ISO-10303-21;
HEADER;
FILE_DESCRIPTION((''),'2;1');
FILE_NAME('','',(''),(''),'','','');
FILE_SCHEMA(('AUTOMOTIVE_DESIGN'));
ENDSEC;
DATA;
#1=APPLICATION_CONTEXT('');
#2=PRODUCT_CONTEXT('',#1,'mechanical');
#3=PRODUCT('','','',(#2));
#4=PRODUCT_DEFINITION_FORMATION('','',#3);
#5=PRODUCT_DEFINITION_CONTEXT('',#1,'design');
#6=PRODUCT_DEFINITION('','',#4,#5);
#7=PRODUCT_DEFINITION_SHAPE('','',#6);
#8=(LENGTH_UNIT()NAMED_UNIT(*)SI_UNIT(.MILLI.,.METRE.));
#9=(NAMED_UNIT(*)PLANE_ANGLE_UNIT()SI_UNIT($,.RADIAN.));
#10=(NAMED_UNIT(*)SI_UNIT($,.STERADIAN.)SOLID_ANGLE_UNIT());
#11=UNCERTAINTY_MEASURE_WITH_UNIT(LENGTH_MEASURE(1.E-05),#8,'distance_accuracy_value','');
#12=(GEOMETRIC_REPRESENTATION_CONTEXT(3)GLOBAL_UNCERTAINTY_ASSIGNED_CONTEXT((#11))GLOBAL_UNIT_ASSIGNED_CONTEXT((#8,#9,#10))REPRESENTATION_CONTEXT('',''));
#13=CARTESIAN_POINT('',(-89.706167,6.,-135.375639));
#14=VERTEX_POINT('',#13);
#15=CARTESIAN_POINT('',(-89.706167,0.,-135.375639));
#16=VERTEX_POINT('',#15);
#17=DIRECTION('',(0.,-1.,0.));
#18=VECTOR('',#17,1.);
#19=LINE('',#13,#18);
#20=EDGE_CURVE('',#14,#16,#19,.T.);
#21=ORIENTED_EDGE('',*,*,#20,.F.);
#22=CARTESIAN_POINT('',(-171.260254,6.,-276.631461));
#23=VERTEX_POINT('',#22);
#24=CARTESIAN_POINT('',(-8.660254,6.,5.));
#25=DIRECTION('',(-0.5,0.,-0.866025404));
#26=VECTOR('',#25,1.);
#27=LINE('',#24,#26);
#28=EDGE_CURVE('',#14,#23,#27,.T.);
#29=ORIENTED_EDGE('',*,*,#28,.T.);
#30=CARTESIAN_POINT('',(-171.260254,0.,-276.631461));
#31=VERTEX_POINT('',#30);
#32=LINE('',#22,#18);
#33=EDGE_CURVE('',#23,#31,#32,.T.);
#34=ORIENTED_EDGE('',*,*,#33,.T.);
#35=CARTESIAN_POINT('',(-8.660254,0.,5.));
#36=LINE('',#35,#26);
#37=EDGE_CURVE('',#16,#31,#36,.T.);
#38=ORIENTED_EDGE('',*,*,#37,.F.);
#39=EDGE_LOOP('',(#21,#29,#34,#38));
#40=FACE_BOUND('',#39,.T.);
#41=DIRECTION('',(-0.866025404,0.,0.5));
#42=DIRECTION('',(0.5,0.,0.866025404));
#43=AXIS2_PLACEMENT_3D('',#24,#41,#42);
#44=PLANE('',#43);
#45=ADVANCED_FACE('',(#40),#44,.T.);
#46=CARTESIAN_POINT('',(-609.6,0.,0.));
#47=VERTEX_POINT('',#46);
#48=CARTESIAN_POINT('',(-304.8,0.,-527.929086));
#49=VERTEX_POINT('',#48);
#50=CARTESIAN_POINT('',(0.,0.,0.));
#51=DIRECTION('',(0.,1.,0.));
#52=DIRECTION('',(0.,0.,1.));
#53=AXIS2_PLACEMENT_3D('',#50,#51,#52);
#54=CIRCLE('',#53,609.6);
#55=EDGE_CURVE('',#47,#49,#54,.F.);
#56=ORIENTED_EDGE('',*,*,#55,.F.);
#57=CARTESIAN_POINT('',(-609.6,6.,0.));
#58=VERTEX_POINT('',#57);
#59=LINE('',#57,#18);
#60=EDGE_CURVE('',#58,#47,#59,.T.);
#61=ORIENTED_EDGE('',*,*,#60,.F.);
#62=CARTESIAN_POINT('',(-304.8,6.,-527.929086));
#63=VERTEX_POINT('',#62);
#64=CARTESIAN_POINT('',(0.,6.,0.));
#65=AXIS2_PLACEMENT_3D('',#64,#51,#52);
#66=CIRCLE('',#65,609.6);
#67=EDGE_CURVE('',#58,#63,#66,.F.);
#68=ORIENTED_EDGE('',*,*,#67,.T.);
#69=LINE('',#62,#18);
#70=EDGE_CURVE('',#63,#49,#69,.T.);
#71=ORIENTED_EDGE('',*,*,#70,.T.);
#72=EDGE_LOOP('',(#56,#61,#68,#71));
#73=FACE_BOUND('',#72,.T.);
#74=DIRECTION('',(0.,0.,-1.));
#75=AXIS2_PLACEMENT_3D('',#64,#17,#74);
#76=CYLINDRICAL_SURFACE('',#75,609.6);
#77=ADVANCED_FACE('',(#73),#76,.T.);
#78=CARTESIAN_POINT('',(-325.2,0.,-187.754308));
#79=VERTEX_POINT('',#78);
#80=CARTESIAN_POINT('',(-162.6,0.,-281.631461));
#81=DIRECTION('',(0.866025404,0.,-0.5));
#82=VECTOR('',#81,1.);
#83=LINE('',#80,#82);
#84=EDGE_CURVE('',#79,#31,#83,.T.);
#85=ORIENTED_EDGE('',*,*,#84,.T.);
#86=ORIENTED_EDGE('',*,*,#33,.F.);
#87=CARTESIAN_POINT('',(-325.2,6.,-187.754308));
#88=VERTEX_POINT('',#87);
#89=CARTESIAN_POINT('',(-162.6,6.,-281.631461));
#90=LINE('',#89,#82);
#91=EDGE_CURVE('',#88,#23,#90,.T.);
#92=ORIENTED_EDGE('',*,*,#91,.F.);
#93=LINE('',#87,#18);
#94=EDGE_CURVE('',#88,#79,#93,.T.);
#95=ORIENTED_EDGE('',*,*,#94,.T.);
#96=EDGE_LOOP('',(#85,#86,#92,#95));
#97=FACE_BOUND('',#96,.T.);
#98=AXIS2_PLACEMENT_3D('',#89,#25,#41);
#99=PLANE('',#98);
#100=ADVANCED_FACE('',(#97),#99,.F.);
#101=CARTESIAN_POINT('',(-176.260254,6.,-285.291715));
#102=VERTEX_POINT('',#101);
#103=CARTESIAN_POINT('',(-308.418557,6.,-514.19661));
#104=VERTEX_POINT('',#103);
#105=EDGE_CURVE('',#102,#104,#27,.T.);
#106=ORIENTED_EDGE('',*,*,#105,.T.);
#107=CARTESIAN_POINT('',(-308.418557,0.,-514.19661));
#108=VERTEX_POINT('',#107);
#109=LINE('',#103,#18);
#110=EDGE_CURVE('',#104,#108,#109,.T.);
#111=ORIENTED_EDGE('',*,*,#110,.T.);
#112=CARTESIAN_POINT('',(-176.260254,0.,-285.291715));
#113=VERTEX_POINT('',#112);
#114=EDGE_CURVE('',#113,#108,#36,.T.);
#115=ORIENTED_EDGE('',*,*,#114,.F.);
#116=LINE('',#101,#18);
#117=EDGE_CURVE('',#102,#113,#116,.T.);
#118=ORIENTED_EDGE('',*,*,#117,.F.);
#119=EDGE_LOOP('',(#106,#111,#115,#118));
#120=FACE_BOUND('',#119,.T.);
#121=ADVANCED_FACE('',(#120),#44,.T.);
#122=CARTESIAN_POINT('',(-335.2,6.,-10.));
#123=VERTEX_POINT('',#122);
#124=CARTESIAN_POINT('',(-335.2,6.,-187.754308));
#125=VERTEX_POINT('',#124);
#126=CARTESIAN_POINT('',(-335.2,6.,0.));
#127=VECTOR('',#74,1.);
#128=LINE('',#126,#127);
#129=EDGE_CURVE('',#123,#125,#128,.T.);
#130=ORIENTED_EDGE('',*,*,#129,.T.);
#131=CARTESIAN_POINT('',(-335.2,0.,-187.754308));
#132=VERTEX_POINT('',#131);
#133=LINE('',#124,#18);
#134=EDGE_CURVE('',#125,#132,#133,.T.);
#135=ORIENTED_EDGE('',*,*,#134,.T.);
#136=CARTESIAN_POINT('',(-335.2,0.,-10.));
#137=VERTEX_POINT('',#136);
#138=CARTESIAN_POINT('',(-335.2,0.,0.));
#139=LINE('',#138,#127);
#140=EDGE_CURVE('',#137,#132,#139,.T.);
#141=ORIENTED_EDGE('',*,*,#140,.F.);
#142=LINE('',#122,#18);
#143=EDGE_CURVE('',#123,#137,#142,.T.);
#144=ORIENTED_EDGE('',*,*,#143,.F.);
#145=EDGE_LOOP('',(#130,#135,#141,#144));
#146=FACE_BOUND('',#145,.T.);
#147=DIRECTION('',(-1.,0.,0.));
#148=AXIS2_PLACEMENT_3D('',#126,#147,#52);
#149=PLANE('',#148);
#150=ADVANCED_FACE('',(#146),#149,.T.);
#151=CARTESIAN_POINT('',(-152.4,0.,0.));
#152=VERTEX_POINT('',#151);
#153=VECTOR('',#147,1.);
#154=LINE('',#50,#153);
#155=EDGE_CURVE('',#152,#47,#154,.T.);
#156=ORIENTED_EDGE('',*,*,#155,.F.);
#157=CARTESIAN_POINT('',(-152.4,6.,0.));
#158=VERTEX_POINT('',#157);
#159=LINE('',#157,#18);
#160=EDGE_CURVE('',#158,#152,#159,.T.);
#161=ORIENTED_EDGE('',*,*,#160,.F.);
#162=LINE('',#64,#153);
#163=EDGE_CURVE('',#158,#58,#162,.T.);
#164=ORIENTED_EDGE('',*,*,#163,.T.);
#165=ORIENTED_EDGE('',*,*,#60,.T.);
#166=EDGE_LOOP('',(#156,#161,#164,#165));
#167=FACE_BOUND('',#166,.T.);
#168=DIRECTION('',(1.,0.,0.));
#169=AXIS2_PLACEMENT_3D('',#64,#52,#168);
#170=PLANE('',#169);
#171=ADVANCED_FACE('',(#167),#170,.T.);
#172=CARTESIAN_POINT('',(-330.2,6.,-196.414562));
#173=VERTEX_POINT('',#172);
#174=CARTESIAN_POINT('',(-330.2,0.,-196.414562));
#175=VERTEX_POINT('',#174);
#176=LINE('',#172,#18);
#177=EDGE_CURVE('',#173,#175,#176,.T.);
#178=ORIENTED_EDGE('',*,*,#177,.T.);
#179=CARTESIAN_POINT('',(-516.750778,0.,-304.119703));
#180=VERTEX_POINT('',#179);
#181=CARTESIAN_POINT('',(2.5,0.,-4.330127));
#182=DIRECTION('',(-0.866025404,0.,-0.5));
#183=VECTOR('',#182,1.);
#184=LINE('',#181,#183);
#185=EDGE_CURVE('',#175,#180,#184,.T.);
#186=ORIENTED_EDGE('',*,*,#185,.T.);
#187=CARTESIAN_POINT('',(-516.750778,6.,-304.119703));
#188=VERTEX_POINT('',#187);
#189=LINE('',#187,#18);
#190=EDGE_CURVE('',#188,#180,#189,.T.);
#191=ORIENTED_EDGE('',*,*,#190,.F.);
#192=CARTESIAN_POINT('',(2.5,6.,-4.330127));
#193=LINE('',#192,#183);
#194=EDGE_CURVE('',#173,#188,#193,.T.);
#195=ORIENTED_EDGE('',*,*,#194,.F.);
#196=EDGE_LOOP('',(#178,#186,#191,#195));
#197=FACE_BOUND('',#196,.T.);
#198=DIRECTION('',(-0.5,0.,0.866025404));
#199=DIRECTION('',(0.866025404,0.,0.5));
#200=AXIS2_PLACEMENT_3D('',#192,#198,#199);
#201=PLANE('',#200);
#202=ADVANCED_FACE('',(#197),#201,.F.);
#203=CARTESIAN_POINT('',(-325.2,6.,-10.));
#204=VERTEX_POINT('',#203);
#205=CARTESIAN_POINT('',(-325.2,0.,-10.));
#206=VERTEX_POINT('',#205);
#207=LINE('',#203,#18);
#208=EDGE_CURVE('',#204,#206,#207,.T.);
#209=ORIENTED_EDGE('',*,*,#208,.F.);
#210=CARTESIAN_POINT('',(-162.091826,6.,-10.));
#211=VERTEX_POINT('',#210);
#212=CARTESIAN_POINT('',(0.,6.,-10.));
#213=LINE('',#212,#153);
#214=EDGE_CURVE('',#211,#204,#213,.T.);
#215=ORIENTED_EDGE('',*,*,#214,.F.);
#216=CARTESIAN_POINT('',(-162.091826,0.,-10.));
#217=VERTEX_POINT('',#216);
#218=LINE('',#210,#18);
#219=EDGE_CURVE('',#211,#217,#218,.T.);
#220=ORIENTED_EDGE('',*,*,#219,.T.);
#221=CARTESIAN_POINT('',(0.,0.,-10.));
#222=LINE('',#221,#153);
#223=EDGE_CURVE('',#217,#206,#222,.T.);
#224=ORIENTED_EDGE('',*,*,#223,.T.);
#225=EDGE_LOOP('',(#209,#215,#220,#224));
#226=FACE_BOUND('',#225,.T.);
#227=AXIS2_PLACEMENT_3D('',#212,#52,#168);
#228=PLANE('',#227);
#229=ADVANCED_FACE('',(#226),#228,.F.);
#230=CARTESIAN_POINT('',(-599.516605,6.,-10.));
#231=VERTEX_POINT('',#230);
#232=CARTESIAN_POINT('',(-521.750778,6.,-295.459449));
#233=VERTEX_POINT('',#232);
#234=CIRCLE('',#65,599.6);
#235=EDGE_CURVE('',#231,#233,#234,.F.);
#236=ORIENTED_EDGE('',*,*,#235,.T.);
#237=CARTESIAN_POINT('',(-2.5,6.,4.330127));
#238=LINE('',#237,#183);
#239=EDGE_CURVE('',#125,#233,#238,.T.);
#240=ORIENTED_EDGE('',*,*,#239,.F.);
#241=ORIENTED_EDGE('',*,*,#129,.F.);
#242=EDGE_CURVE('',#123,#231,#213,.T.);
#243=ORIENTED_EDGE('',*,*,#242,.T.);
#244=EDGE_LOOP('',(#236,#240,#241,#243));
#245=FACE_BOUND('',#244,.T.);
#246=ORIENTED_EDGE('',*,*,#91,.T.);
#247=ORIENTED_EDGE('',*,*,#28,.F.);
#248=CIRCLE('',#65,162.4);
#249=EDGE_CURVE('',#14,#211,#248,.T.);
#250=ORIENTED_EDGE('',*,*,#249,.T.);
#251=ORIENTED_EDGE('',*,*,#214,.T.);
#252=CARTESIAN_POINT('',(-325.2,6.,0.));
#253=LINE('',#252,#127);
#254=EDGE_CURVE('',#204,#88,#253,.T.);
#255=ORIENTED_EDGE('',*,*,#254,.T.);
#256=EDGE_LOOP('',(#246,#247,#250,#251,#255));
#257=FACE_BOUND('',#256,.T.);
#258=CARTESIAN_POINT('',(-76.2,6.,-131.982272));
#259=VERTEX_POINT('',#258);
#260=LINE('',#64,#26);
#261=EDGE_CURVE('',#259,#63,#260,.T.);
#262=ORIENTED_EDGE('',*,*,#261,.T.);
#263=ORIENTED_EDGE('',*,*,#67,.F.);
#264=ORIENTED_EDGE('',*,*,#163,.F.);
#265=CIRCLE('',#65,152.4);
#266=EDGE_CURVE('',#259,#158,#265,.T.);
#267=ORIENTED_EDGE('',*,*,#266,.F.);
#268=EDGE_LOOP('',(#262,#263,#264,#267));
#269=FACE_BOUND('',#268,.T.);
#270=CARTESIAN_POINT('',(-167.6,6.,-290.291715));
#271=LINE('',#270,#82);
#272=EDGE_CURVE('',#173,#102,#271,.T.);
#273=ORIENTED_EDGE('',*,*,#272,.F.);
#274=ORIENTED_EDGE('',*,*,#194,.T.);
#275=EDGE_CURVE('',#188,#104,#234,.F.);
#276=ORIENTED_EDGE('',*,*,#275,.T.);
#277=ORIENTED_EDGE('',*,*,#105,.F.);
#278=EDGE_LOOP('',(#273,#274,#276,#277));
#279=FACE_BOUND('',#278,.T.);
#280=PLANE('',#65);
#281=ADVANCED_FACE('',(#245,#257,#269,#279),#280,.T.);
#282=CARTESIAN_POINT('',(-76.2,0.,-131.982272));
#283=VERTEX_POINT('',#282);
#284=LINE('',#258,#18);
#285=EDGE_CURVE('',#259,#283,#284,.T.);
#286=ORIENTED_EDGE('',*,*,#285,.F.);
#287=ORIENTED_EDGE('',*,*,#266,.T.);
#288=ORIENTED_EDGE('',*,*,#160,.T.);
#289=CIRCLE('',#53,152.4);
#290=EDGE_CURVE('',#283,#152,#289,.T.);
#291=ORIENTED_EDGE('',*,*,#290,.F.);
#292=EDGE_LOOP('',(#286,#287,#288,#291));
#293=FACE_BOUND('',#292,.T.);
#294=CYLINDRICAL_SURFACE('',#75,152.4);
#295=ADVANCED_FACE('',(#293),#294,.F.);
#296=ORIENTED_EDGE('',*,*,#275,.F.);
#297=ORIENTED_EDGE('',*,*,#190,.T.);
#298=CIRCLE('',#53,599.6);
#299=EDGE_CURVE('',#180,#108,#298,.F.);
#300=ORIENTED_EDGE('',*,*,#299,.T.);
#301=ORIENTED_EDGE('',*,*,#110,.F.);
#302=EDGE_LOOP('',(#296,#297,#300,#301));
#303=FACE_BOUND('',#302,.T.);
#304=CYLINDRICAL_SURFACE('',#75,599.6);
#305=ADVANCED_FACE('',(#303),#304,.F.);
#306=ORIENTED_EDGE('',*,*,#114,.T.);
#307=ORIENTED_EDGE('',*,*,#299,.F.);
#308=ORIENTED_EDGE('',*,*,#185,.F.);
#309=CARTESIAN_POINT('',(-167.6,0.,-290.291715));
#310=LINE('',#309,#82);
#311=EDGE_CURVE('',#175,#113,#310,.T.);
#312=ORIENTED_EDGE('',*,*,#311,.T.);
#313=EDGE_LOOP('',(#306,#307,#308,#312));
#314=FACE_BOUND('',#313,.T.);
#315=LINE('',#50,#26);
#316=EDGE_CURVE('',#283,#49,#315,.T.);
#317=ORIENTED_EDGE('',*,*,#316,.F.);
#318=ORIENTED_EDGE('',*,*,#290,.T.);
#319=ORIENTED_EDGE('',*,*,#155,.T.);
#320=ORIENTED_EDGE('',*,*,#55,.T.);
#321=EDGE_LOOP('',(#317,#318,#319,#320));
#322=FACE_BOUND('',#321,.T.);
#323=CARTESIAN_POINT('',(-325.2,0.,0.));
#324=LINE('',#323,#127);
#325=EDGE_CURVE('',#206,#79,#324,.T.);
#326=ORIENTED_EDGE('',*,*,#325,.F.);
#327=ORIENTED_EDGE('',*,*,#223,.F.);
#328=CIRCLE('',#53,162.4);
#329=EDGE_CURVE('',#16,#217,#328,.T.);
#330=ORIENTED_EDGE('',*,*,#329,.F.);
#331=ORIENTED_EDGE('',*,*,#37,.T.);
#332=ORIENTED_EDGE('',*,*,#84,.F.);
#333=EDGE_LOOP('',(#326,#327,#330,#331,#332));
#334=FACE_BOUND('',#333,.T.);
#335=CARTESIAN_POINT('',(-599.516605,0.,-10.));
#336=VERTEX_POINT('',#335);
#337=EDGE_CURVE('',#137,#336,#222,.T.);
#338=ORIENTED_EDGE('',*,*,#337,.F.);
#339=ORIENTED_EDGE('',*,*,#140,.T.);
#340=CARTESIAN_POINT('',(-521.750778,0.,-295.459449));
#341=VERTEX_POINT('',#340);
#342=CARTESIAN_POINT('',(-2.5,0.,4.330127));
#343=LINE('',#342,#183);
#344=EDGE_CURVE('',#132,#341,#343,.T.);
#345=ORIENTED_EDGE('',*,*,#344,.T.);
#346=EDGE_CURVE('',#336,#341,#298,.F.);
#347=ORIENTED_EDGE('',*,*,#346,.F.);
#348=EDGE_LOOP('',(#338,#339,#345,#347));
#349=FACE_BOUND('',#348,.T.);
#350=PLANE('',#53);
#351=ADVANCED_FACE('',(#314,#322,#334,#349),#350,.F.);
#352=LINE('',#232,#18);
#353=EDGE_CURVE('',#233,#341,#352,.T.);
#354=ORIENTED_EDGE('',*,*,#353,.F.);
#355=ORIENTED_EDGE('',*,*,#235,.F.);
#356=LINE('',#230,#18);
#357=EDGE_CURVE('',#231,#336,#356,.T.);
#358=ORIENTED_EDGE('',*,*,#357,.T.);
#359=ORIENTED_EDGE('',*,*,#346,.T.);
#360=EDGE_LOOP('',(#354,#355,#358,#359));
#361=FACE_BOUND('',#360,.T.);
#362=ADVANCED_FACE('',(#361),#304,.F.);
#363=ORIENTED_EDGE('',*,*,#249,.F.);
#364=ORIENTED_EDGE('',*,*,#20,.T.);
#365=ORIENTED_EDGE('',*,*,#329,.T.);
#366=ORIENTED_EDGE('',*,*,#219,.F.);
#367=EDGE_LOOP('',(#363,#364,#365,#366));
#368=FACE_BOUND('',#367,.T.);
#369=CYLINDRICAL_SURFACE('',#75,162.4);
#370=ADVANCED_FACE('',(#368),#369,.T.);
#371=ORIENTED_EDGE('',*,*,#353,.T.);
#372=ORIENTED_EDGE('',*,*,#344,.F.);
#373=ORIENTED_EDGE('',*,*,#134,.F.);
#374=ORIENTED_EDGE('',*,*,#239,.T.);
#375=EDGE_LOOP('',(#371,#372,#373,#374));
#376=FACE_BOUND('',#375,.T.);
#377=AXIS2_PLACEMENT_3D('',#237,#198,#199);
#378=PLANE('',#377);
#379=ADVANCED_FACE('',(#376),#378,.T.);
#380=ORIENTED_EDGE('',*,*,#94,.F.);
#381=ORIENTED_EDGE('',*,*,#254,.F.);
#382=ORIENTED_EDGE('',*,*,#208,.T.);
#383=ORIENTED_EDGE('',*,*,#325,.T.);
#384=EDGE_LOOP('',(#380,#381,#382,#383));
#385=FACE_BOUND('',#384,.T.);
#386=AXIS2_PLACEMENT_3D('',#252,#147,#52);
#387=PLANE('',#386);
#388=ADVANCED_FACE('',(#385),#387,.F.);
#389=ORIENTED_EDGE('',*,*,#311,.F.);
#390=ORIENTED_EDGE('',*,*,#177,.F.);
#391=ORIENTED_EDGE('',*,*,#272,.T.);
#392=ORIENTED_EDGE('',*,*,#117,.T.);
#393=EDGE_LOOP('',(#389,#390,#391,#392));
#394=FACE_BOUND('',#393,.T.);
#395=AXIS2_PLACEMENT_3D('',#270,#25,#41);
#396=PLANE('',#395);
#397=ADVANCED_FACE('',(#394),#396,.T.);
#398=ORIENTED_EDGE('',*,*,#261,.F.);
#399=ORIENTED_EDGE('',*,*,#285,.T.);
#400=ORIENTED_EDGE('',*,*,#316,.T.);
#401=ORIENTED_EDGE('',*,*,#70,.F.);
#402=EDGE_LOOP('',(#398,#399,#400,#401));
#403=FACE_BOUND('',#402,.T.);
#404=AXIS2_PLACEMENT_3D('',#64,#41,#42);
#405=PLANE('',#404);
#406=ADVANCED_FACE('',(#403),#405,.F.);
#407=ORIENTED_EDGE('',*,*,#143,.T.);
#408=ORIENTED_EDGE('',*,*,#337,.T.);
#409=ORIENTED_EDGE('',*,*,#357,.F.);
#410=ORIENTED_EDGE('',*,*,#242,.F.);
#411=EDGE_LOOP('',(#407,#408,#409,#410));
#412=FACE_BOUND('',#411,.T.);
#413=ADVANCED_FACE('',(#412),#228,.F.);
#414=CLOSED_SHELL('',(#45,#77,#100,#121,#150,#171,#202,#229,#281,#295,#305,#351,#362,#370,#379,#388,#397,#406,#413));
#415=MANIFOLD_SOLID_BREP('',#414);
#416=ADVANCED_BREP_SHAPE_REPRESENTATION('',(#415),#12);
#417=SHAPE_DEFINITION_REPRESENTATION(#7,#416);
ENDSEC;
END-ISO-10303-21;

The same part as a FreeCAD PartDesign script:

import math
import FreeCAD as App
import Part
import Sketcher

V = App.Vector
Q = App.Units.Quantity

doc = App.newDocument("Part")
body = doc.addObject("PartDesign::Body", "Body")

sketch1 = body.newObject("Sketcher::SketchObject", "Sketch")
sketch1.AttachmentSupport = (doc.getObject("XZ_Plane"), [""])
sketch1.MapMode = "FlatFace"
sketch1.addGeometry(Part.ArcOfCircle(Part.Circle(V(0, 0, 0), V(0, 0, 1), 152), math.radians(180), math.radians(240)), False)
sketch1.addGeometry(Part.LineSegment(V(-76, -132, 0), V(-305, -528, 0)), False)
sketch1.addGeometry(Part.ArcOfCircle(Part.Circle(V(0, 0, 0), V(0, 0, 1), 610), math.radians(180), math.radians(240)), False)
sketch1.addGeometry(Part.LineSegment(V(-610, 0, 0), V(-152, 0, 0)), False)
sketch1.addGeometry(Part.ArcOfCircle(Part.Circle(V(0, 0, 0), V(0, 0, 1), 162), math.radians(-176), math.radians(-124)), False)
sketch1.addGeometry(Part.LineSegment(V(-162, -10, 0), V(-325, -10, 0)), False)
sketch1.addGeometry(Part.LineSegment(V(-325, -10, 0), V(-325, -188, 0)), False)
sketch1.addGeometry(Part.LineSegment(V(-325, -188, 0), V(-171, -277, 0)), False)
sketch1.addGeometry(Part.LineSegment(V(-171, -277, 0), V(-90, -135, 0)), False)
sketch1.addGeometry(Part.LineSegment(V(-335, -10, 0), V(-600, -10, 0)), False)
sketch1.addGeometry(Part.ArcOfCircle(Part.Circle(V(0, 0, 0), V(0, 0, 1), 600), math.radians(-179), math.radians(-150)), False)
sketch1.addGeometry(Part.LineSegment(V(-522, -295, 0), V(-335, -188, 0)), False)
sketch1.addGeometry(Part.LineSegment(V(-335, -188, 0), V(-335, -10, 0)), False)
sketch1.addGeometry(Part.LineSegment(V(-330, -196, 0), V(-517, -304, 0)), False)
sketch1.addGeometry(Part.ArcOfCircle(Part.Circle(V(0, 0, 0), V(0, 0, 1), 600), math.radians(-150), math.radians(-121)), False)
sketch1.addGeometry(Part.LineSegment(V(-308, -514, 0), V(-176, -285, 0)), False)
sketch1.addGeometry(Part.LineSegment(V(-176, -285, 0), V(-330, -196, 0)), False)
sketch1.addConstraint(Sketcher.Constraint("Coincident", 0, 2, 1, 1))
sketch1.addConstraint(Sketcher.Constraint("Coincident", 1, 2, 2, 2))
sketch1.addConstraint(Sketcher.Constraint("Coincident", 2, 1, 3, 1))
sketch1.addConstraint(Sketcher.Constraint("Coincident", 3, 2, 0, 1))
sketch1.addConstraint(Sketcher.Constraint("Coincident", 4, 1, 5, 1))
sketch1.addConstraint(Sketcher.Constraint("Coincident", 5, 2, 6, 1))
sketch1.addConstraint(Sketcher.Constraint("Coincident", 6, 2, 7, 1))
sketch1.addConstraint(Sketcher.Constraint("Coincident", 7, 2, 8, 1))
sketch1.addConstraint(Sketcher.Constraint("Coincident", 8, 2, 4, 2))
sketch1.addConstraint(Sketcher.Constraint("Coincident", 9, 2, 10, 1))
sketch1.addConstraint(Sketcher.Constraint("Coincident", 10, 2, 11, 1))
sketch1.addConstraint(Sketcher.Constraint("Coincident", 11, 2, 12, 1))
sketch1.addConstraint(Sketcher.Constraint("Coincident", 12, 2, 9, 1))
sketch1.addConstraint(Sketcher.Constraint("Coincident", 13, 2, 14, 1))
sketch1.addConstraint(Sketcher.Constraint("Coincident", 14, 2, 15, 1))
sketch1.addConstraint(Sketcher.Constraint("Coincident", 15, 2, 16, 1))
sketch1.addConstraint(Sketcher.Constraint("Coincident", 16, 2, 13, 1))
sketch1.addConstraint(Sketcher.Constraint("Horizontal", 3))
sketch1.addConstraint(Sketcher.Constraint("Horizontal", 5))
sketch1.addConstraint(Sketcher.Constraint("Vertical", 6))
sketch1.addConstraint(Sketcher.Constraint("Horizontal", 9))
sketch1.addConstraint(Sketcher.Constraint("Vertical", 12))
sketch1.addConstraint(Sketcher.Constraint("Coincident", 0, 3, -1, 1))
sketch1.addConstraint(Sketcher.Constraint("Coincident", 2, 3, -1, 1))
sketch1.addConstraint(Sketcher.Constraint("Coincident", 4, 3, -1, 1))
sketch1.addConstraint(Sketcher.Constraint("Coincident", 10, 3, -1, 1))
sketch1.addConstraint(Sketcher.Constraint("Coincident", 14, 3, -1, 1))
sketch1.addConstraint(Sketcher.Constraint("Equal", 10, 14))
sketch1.addConstraint(Sketcher.Constraint("PointOnObject", 3, 2, -1))
sketch1.addConstraint(Sketcher.Constraint("Perpendicular", 1, 7))
sketch1.addConstraint(Sketcher.Constraint("Perpendicular", 7, 8))
sketch1.addConstraint(Sketcher.Constraint("Parallel", 11, 13))
sketch1.addConstraint(Sketcher.Constraint("Parallel", 8, 15))
sketch1.addConstraint(Sketcher.Constraint("Perpendicular", 15, 16))
sketch1.addConstraint(Sketcher.Constraint("Horizontal", 5, 2, 9, 2))
sketch1.addConstraint(Sketcher.Constraint("Horizontal", 6, 2, 11, 2))
sketch1.addConstraint(Sketcher.Constraint("Equal", 11, 13))
sketch1.addConstraint(Sketcher.Constraint("Equal", 7, 16))
sketch1.addConstraint(Sketcher.Constraint("Radius", 0, Q("152.4 mm")))
sketch1.addConstraint(Sketcher.Constraint("Radius", 2, Q("609.6 mm")))
sketch1.addConstraint(Sketcher.Constraint("Radius", 4, Q("162.4 mm")))
sketch1.addConstraint(Sketcher.Constraint("Radius", 10, Q("599.6 mm")))
sketch1.addConstraint(Sketcher.Constraint("Angle", 1, Q("-120 deg")))
sketch1.addConstraint(Sketcher.Constraint("Angle", 11, Q("30 deg")))
sketch1.addConstraint(Sketcher.Constraint("DistanceY", 4, 1, -1, 1, Q("10 mm")))
sketch1.addConstraint(Sketcher.Constraint("DistanceX", 5, 2, 0, 2, Q("249 mm")))
sketch1.addConstraint(Sketcher.Constraint("DistanceX", 11, 2, 6, 2, Q("10 mm")))
sketch1.addConstraint(Sketcher.Constraint("DistanceX", 15, 2, 7, 2, Q("5 mm")))
sketch1.addConstraint(Sketcher.Constraint("DistanceX", 0, 2, -1, 1, Q("76.2 mm")))
sketch1.addConstraint(Sketcher.Constraint("DistanceY", 7, 2, 16, 2, Q("80.2169 mm")))
sketch1.addConstraint(Sketcher.Constraint("DistanceY", 6, 2, 6, 1, Q("177.754308 mm")))
pad1 = body.newObject("PartDesign::Pad", "Pad")
pad1.Profile = sketch1
pad1.Length = 6
pad1.Reversed = True

doc.recompute()
